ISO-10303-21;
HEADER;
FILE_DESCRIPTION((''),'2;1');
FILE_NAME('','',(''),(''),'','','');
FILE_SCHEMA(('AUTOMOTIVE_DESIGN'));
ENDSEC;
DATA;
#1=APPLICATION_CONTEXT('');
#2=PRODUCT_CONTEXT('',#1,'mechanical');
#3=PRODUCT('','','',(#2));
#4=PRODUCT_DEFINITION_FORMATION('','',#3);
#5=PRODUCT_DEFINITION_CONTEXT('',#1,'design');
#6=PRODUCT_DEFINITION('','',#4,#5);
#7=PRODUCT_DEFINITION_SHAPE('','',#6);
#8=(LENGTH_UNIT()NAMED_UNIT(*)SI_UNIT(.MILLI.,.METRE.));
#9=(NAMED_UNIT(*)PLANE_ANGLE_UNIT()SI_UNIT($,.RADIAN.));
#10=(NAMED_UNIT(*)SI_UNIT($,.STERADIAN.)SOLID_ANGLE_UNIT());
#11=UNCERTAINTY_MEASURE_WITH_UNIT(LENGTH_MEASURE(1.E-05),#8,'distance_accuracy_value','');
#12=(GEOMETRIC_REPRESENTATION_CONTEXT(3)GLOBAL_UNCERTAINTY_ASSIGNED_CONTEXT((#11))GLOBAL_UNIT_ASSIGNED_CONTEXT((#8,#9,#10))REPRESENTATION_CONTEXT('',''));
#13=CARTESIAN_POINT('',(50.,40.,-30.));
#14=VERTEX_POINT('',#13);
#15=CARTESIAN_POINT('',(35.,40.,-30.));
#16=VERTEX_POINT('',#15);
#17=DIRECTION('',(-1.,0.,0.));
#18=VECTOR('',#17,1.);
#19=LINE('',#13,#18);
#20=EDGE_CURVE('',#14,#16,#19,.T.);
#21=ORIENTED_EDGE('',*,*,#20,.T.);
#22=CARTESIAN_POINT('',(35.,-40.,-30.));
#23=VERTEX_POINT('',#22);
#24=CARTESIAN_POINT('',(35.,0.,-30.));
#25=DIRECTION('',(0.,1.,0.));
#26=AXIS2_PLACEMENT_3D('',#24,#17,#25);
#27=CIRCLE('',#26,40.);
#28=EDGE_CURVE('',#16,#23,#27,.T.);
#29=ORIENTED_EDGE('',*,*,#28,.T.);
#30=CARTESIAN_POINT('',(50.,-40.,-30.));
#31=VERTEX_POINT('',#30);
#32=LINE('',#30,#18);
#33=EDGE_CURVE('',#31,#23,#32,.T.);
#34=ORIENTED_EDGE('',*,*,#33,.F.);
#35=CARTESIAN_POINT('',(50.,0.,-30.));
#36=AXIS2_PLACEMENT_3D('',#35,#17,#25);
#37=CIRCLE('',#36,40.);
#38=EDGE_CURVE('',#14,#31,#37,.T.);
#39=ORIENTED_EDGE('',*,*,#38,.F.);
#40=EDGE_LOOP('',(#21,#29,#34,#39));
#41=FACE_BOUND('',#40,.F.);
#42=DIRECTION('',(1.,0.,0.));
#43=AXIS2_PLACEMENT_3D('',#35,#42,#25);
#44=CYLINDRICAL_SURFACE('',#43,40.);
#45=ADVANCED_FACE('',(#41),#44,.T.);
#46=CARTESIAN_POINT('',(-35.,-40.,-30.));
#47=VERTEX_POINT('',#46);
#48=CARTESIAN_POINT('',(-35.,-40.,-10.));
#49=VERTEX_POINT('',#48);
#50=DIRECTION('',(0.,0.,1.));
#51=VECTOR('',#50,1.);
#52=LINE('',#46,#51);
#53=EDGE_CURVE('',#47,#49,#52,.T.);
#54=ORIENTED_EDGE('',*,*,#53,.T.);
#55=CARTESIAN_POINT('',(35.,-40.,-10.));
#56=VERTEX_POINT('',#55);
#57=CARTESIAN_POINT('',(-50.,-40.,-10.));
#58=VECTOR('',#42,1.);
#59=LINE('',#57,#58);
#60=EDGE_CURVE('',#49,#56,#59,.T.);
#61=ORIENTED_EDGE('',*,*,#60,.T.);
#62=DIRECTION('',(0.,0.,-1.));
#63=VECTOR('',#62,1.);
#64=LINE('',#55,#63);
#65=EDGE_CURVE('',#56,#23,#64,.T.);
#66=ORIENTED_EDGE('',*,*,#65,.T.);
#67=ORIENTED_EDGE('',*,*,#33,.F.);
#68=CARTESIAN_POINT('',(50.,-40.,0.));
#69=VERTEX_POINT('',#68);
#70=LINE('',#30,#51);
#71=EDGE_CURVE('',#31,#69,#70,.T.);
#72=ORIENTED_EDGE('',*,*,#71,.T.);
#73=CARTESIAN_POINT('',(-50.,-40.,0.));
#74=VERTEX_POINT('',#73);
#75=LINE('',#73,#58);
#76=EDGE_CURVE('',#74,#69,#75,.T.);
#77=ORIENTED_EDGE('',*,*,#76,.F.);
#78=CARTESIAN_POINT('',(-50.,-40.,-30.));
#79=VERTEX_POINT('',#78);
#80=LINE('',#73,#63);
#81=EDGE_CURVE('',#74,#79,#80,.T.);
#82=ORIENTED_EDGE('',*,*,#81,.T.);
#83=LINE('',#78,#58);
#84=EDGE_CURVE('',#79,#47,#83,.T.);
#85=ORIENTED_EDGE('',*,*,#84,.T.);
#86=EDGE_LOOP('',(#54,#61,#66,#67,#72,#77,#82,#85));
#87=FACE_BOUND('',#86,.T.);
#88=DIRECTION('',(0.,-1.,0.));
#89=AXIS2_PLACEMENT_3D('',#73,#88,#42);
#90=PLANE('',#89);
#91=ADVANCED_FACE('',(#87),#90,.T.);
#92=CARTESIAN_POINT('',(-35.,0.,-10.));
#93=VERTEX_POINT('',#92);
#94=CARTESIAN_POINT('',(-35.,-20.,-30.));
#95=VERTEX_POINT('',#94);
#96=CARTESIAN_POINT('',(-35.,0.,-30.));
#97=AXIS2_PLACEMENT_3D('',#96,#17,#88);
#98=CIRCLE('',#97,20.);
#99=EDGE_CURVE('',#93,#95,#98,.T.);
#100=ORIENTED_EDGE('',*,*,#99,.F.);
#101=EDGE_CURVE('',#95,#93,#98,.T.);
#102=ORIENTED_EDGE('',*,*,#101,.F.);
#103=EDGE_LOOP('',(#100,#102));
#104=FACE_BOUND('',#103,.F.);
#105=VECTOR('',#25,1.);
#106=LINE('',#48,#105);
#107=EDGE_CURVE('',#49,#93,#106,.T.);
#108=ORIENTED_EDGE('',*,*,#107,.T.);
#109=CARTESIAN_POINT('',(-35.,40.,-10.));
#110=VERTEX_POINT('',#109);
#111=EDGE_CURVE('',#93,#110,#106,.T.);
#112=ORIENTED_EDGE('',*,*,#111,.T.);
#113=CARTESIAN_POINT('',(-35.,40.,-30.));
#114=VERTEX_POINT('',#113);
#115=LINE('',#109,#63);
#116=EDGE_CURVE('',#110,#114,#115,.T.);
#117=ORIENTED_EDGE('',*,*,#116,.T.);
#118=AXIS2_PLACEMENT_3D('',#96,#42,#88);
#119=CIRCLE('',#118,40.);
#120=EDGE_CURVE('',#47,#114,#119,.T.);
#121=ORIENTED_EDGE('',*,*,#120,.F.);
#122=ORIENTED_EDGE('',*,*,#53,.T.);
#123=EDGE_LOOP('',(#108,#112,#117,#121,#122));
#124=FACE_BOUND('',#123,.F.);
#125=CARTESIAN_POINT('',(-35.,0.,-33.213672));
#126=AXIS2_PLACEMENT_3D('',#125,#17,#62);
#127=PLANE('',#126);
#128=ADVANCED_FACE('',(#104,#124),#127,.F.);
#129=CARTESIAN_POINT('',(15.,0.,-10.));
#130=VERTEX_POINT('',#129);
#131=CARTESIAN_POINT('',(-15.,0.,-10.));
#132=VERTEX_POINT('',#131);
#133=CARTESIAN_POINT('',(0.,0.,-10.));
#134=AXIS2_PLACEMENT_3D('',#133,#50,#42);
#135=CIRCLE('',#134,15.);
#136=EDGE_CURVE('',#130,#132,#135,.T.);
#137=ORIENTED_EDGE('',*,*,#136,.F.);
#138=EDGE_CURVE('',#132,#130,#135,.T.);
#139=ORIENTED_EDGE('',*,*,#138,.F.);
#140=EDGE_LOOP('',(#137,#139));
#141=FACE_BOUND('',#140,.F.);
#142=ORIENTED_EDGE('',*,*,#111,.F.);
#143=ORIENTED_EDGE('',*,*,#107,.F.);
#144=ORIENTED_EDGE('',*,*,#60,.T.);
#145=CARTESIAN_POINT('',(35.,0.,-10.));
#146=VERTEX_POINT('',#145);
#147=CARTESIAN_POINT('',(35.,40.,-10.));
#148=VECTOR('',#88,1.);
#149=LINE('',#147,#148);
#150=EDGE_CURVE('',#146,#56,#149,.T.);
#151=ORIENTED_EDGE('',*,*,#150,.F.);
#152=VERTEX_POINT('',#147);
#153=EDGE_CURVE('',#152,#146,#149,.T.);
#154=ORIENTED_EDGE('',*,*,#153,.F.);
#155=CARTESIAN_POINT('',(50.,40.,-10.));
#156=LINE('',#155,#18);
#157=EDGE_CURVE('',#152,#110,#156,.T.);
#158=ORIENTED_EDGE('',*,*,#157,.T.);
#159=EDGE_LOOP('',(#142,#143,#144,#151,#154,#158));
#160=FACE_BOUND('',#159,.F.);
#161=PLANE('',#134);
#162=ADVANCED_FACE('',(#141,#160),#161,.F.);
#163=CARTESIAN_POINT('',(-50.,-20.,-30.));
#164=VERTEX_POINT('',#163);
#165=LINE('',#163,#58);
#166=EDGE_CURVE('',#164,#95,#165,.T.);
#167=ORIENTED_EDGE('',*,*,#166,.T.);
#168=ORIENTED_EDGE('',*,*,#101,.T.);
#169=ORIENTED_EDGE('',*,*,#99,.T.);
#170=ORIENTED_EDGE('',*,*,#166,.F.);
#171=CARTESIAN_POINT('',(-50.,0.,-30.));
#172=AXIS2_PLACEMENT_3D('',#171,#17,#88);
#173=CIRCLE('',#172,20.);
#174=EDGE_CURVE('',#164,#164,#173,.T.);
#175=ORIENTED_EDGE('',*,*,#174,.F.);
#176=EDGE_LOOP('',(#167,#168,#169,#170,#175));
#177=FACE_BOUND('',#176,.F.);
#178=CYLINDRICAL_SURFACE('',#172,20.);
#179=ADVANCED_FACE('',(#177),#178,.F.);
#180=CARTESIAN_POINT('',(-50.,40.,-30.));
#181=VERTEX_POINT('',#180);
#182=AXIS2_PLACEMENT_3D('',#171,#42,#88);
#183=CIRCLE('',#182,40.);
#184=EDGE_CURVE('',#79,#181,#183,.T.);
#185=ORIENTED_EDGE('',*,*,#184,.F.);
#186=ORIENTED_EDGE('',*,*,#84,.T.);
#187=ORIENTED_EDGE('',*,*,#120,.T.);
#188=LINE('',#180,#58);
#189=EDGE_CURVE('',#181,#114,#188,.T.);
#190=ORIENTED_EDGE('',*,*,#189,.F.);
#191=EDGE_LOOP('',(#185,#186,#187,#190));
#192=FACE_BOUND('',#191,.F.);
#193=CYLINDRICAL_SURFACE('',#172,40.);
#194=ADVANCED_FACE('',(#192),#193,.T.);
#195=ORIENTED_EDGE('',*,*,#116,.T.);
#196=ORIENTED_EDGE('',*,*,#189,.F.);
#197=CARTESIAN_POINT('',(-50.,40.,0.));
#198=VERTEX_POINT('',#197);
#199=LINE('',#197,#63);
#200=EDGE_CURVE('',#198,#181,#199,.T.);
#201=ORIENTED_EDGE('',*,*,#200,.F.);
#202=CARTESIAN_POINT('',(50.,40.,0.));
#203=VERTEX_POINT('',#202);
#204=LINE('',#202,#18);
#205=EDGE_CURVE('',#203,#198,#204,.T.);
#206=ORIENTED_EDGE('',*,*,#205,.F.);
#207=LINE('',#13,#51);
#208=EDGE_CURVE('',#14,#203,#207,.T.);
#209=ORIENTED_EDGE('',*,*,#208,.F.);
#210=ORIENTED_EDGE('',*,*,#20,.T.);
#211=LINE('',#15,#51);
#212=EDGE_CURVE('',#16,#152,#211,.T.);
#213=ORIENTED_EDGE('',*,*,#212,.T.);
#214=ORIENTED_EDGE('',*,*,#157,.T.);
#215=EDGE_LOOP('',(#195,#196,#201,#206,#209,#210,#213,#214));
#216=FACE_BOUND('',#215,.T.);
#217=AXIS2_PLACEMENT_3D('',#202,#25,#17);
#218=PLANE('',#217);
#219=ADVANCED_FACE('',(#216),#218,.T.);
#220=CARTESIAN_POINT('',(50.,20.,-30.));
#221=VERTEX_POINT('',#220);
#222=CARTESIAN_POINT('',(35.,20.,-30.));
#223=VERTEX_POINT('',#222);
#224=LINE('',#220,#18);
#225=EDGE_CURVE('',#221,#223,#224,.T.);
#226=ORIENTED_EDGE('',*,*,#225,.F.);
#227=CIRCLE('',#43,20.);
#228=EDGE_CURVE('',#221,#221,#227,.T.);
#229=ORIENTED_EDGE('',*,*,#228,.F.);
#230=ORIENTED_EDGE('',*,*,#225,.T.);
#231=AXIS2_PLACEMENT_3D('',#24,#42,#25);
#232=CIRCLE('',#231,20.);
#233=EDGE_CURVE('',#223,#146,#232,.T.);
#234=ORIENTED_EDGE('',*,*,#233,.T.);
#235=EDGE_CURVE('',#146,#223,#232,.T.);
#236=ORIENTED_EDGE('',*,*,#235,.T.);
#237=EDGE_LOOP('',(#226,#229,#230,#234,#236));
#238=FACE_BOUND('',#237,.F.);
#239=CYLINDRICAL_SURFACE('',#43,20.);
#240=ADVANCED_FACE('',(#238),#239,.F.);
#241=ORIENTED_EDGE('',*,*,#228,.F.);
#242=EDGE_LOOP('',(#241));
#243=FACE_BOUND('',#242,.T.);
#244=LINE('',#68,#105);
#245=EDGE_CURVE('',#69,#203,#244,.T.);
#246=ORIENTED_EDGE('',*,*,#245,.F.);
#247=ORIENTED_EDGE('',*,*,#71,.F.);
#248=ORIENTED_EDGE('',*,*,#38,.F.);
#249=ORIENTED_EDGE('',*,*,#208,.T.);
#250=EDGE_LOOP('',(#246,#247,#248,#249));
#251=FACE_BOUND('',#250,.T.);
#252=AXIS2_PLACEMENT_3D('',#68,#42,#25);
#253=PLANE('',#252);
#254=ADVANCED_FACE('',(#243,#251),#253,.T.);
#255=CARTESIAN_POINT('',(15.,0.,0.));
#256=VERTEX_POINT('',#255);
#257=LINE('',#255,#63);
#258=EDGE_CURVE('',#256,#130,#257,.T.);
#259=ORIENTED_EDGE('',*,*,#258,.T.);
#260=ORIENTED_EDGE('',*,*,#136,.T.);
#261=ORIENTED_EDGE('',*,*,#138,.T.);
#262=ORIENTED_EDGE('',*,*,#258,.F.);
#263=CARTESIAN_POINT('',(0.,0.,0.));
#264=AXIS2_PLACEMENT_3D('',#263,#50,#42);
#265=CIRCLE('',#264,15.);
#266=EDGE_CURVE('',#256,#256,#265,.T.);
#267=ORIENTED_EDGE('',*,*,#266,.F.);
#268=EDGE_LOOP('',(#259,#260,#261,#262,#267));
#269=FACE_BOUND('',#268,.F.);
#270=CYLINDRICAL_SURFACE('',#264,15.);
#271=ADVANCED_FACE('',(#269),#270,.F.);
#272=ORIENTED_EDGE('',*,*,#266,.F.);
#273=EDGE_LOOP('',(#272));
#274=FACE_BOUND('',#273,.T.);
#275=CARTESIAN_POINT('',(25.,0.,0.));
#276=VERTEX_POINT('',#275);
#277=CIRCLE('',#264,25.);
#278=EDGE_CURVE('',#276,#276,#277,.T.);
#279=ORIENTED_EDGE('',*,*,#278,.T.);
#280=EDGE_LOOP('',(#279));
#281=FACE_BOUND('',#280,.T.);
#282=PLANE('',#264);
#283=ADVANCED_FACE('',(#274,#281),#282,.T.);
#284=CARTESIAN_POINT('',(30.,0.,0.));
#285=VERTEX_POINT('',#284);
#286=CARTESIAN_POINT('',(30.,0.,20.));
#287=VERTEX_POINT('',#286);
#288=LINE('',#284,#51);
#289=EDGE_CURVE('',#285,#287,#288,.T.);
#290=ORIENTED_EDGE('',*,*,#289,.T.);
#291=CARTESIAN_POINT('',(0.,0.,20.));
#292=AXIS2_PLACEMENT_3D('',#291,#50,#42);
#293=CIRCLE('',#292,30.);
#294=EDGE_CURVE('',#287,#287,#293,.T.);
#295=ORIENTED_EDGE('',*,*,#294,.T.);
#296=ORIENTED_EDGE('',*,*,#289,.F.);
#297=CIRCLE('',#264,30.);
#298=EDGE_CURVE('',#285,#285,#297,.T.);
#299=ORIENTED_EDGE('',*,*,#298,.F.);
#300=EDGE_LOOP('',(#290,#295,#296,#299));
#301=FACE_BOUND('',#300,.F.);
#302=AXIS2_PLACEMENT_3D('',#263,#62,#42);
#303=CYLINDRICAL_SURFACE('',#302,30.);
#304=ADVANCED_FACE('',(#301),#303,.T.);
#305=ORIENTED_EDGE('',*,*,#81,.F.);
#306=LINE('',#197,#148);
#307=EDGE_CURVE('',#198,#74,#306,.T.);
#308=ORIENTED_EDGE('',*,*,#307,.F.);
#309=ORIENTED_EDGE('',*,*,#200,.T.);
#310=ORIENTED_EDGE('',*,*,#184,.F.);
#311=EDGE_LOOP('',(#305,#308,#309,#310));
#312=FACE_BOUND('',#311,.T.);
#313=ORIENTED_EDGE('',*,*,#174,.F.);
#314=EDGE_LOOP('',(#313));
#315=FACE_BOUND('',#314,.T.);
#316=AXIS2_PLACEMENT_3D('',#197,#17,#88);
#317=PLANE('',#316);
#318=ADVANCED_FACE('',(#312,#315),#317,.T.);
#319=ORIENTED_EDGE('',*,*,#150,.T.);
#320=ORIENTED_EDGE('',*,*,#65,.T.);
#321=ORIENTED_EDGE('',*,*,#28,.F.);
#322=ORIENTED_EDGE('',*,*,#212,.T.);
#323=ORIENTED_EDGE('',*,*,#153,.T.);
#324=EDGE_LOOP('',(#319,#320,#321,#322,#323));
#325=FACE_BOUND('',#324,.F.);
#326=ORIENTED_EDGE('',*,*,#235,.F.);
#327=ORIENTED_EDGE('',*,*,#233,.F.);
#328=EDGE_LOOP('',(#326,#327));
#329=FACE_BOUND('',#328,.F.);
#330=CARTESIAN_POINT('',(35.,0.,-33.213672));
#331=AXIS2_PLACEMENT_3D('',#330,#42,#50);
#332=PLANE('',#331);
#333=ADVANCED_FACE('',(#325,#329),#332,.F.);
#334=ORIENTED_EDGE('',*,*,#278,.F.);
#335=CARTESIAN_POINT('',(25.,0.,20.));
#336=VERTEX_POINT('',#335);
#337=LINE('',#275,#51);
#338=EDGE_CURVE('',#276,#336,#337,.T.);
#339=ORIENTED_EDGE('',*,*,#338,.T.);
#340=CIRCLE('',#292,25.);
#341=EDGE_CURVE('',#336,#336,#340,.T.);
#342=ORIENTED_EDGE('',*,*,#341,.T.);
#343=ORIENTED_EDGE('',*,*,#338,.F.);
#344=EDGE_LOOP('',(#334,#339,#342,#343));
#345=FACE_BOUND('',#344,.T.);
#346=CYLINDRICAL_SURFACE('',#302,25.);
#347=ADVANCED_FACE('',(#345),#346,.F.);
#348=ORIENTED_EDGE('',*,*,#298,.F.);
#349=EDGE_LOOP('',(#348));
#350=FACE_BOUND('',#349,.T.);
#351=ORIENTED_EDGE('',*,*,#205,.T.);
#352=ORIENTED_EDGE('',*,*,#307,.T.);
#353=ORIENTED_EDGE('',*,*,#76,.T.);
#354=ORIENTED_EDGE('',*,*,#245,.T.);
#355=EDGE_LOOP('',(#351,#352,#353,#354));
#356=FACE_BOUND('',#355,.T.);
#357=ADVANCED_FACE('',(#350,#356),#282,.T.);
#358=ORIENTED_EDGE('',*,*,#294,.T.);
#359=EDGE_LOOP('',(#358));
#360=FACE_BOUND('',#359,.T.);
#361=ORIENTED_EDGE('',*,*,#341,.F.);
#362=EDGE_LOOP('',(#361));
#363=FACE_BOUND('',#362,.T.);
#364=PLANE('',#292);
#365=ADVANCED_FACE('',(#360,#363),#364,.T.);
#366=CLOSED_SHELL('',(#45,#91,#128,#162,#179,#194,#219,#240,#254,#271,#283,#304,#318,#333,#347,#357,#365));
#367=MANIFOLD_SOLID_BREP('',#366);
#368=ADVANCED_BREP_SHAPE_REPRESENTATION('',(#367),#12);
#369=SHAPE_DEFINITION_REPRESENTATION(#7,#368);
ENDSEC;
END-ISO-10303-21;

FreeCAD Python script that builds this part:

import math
import FreeCAD as App
import Part
import Sketcher

V = App.Vector

doc = App.newDocument("Part")
body = doc.addObject("PartDesign::Body", "Body")

# Sketch on XY plane
sketch1 = body.newObject("Sketcher::SketchObject", "Sketch")
sketch1.AttachmentSupport = (doc.getObject("XY_Plane"), [""])
sketch1.MapMode = "FlatFace"
sketch1.addGeometry(Part.LineSegment(V(-50, 40, 0), V(-50, -40, 0)), False)
sketch1.addGeometry(Part.LineSegment(V(-50, -40, 0), V(50, -40, 0)), False)
sketch1.addGeometry(Part.LineSegment(V(50, -40, 0), V(50, 40, 0)), False)
sketch1.addGeometry(Part.LineSegment(V(50, 40, 0), V(-50, 40, 0)), False)
sketch1.addConstraint(Sketcher.Constraint("Coincident", 0, 2, 1, 1))
sketch1.addConstraint(Sketcher.Constraint("Coincident", 1, 2, 2, 1))
sketch1.addConstraint(Sketcher.Constraint("Coincident", 2, 2, 3, 1))
sketch1.addConstraint(Sketcher.Constraint("Coincident", 3, 2, 0, 1))
sketch1.addConstraint(Sketcher.Constraint("Vertical", 0))
sketch1.addConstraint(Sketcher.Constraint("Horizontal", 1))
sketch1.addConstraint(Sketcher.Constraint("Vertical", 2))
sketch1.addConstraint(Sketcher.Constraint("Horizontal", 3))
sketch1.addConstraint(Sketcher.Constraint("Symmetric", 0, 2, 2, 2, -1, 1))
sketch1.addConstraint(Sketcher.Constraint("DistanceX", 1, 1, 1, 2, 100.0))
sketch1.addConstraint(Sketcher.Constraint("DistanceY", 0, 2, 0, 1, 80.0))
pad1 = body.newObject("PartDesign::Pad", "Pad")
pad1.Profile = sketch1
pad1.Length = 10
pad1.Reversed = True

# Sketch on YZ plane
sketch2 = body.newObject("Sketcher::SketchObject", "Sketch001")
sketch2.AttachmentSupport = (doc.getObject("YZ_Plane"), [""])
sketch2.MapMode = "FlatFace"
sketch2.AttachmentOffset = App.Placement(V(0, 0, 50), App.Rotation())
sketch2.addGeometry(Part.LineSegment(V(40, -10, 0), V(-40, -10, 0)), False)
sketch2.addGeometry(Part.LineSegment(V(-40, -10, 0), V(-40, -30, 0)), False)
sketch2.addGeometry(Part.ArcOfCircle(Part.Circle(V(0, -30, 0), V(0, 0, 1), 40), math.radians(180), math.radians(360)), False)
sketch2.addGeometry(Part.LineSegment(V(40, -30, 0), V(40, -10, 0)), False)
sketch2.addConstraint(Sketcher.Constraint("Coincident", 0, 2, 1, 1))
sketch2.addConstraint(Sketcher.Constraint("Tangent", 1, 2, 2, 1))
sketch2.addConstraint(Sketcher.Constraint("Tangent", 2, 2, 3, 1))
sketch2.addConstraint(Sketcher.Constraint("Coincident", 3, 2, 0, 1))
sketch2.addConstraint(Sketcher.Constraint("Horizontal", 0))
sketch2.addConstraint(Sketcher.Constraint("Vertical", 1))
sketch2.addConstraint(Sketcher.Constraint("Vertical", 3))
sketch2.addConstraint(Sketcher.Constraint("PointOnObject", 2, 3, -2))
sketch2.addConstraint(Sketcher.Constraint("Radius", 2, 40.0))
sketch2.addConstraint(Sketcher.Constraint("DistanceY", 1, 2, 1, 1, 20.0))
sketch2.addConstraint(Sketcher.Constraint("DistanceY", 2, 3, -1, 1, 30.0))
pad2 = body.newObject("PartDesign::Pad", "Pad001")
pad2.Profile = sketch2
pad2.Length = 15
pad2.Reversed = True

# Sketch on YZ plane
sketch3 = body.newObject("Sketcher::SketchObject", "Sketch002")
sketch3.AttachmentSupport = (doc.getObject("YZ_Plane"), [""])
sketch3.MapMode = "FlatFace"
sketch3.AttachmentOffset = App.Placement(V(0, 0, -50), App.Rotation())
sketch3.addGeometry(Part.LineSegment(V(-40, -10, 0), V(40, -10, 0)), False)
sketch3.addGeometry(Part.LineSegment(V(40, -10, 0), V(40, -30, 0)), False)
sketch3.addGeometry(Part.ArcOfCircle(Part.Circle(V(0, -30, 0), V(0, 0, 1), 40), math.radians(180), math.radians(360)), False)
sketch3.addGeometry(Part.LineSegment(V(-40, -30, 0), V(-40, -10, 0)), False)
sketch3.addConstraint(Sketcher.Constraint("Coincident", 0, 2, 1, 1))
sketch3.addConstraint(Sketcher.Constraint("Tangent", 1, 2, 2, 2))
sketch3.addConstraint(Sketcher.Constraint("Tangent", 2, 1, 3, 1))
sketch3.addConstraint(Sketcher.Constraint("Coincident", 3, 2, 0, 1))
sketch3.addConstraint(Sketcher.Constraint("Horizontal", 0))
sketch3.addConstraint(Sketcher.Constraint("Vertical", 1))
sketch3.addConstraint(Sketcher.Constraint("Vertical", 3))
sketch3.addConstraint(Sketcher.Constraint("PointOnObject", 2, 3, -2))
sketch3.addConstraint(Sketcher.Constraint("Radius", 2, 40.0))
sketch3.addConstraint(Sketcher.Constraint("DistanceY", 1, 2, 1, 1, 20.0))
sketch3.addConstraint(Sketcher.Constraint("DistanceY", 2, 3, -1, 1, 30.0))
pad3 = body.newObject("PartDesign::Pad", "Pad002")
pad3.Profile = sketch3
pad3.Length = 15

# Sketch on YZ plane
sketch4 = body.newObject("Sketcher::SketchObject", "Sketch003")
sketch4.AttachmentSupport = (doc.getObject("YZ_Plane"), [""])
sketch4.MapMode = "FlatFace"
sketch4.AttachmentOffset = App.Placement(V(0, 0, 50), App.Rotation())
sketch4.addGeometry(Part.Circle(V(0, -30, 0), V(0, 0, 1), 20), False)
sketch4.addConstraint(Sketcher.Constraint("PointOnObject", 0, 3, -2))
sketch4.addConstraint(Sketcher.Constraint("Diameter", 0, 40.0))
sketch4.addConstraint(Sketcher.Constraint("DistanceY", 0, 3, -1, 1, 30.0))
pocket1 = body.newObject("PartDesign::Pocket", "Pocket")
pocket1.Profile = sketch4
pocket1.Length = 25.6414

# Sketch on YZ plane
sketch5 = body.newObject("Sketcher::SketchObject", "Sketch004")
sketch5.AttachmentSupport = (doc.getObject("YZ_Plane"), [""])
sketch5.MapMode = "FlatFace"
sketch5.AttachmentOffset = App.Placement(V(0, 0, -50), App.Rotation())
sketch5.addGeometry(Part.Circle(V(0, -30, 0), V(0, 0, 1), 20), False)
sketch5.addConstraint(Sketcher.Constraint("PointOnObject", 0, 3, -2))
sketch5.addConstraint(Sketcher.Constraint("Diameter", 0, 40.0))
sketch5.addConstraint(Sketcher.Constraint("DistanceY", 0, 3, -1, 1, 30.0))
pocket2 = body.newObject("PartDesign::Pocket", "Pocket001")
pocket2.Profile = sketch5
pocket2.Length = 43.9388
pocket2.Reversed = True

# Sketch on XY plane
sketch6 = body.newObject("Sketcher::SketchObject", "Sketch005")
sketch6.AttachmentSupport = (doc.getObject("XY_Plane"), [""])
sketch6.MapMode = "FlatFace"
sketch6.addGeometry(Part.Circle(V(0, 0, 0), V(0, 0, 1), 15), False)
sketch6.addConstraint(Sketcher.Constraint("Coincident", 0, 3, -1, 1))
sketch6.addConstraint(Sketcher.Constraint("Diameter", 0, 30.0))
pocket3 = body.newObject("PartDesign::Pocket", "Pocket002")
pocket3.Profile = sketch6
pocket3.Length = 37.3136

# Sketch on XY plane
sketch7 = body.newObject("Sketcher::SketchObject", "Sketch006")
sketch7.AttachmentSupport = (doc.getObject("XY_Plane"), [""])
sketch7.MapMode = "FlatFace"
sketch7.addGeometry(Part.Circle(V(0, 0, 0), V(0, 0, 1), 30), False)
sketch7.addGeometry(Part.Circle(V(0, 0, 0), V(0, 0, 1), 25), False)
sketch7.addConstraint(Sketcher.Constraint("Coincident", 0, 3, -1, 1))
sketch7.addConstraint(Sketcher.Constraint("Coincident", 1, 3, -1, 1))
sketch7.addConstraint(Sketcher.Constraint("Diameter", 0, 60.0))
sketch7.addConstraint(Sketcher.Constraint("Diameter", 1, 50.0))
pad4 = body.newObject("PartDesign::Pad", "Pad003")
pad4.Profile = sketch7
pad4.Length = 20

doc.recompute()
